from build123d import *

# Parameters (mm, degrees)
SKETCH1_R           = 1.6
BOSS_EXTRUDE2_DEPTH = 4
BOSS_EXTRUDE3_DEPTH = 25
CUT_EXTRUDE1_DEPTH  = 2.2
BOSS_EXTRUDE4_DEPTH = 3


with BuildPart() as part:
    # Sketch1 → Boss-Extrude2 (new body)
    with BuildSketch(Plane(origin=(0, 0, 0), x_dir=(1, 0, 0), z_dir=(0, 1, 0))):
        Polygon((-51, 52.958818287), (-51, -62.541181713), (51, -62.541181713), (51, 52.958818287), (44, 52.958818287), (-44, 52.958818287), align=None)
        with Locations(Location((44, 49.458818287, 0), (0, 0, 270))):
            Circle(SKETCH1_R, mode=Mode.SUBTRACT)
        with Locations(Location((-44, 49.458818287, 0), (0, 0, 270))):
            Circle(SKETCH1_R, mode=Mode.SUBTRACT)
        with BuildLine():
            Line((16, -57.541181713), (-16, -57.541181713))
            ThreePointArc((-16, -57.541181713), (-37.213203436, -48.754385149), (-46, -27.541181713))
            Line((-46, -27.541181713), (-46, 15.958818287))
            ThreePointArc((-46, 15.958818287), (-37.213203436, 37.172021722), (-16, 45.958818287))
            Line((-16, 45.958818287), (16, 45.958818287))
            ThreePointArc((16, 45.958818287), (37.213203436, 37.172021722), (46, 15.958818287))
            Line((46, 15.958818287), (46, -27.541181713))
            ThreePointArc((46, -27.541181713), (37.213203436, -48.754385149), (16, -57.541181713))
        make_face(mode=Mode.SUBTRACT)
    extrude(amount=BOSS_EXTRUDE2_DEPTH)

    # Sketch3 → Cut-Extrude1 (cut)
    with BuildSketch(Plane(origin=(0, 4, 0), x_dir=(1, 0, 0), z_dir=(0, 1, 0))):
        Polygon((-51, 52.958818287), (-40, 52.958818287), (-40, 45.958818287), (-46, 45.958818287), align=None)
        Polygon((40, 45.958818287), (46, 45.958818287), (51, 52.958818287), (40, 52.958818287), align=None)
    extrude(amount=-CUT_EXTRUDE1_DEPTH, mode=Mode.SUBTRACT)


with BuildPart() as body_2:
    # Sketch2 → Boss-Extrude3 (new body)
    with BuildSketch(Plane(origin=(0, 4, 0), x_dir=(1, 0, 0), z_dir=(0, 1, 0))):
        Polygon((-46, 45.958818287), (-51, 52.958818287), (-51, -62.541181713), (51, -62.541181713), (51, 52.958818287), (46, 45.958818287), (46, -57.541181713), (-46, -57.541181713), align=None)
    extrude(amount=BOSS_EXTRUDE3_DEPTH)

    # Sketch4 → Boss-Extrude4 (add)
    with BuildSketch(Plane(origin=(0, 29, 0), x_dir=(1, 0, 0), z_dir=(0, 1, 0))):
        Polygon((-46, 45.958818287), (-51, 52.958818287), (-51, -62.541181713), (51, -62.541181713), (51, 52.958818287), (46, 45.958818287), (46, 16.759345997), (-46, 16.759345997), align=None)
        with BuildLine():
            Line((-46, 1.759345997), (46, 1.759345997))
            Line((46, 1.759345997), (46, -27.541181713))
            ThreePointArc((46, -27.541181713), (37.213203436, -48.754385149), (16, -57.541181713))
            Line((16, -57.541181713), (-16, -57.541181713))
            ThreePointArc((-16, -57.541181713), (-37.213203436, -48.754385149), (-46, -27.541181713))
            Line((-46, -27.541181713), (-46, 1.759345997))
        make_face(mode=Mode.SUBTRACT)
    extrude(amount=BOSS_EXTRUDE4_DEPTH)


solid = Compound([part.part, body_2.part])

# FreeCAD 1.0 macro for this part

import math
import FreeCAD as App
import Part
import Sketcher
from FreeCAD import Vector

doc = App.newDocument("Part")
body = doc.addObject("PartDesign::Body", "Body")

sketch1 = body.newObject("Sketcher::SketchObject", "Sketch")
sketch1.AttachmentSupport = (doc.getObject("XZ_Plane"), [""])
sketch1.MapMode = "FlatFace"
sketch1.addGeometry([
    Part.LineSegment(Vector(-51, -53, 0), Vector(-51, 62.5, 0)),
    Part.LineSegment(Vector(-51, 62.5, 0), Vector(51, 62.5, 0)),
    Part.LineSegment(Vector(51, 62.5, 0), Vector(51, -53, 0)),
    Part.LineSegment(Vector(51, -53, 0), Vector(-51, -53, 0)),
    Part.ArcOfCircle(Part.Circle(Vector(16, 27.5, 0), Vector(0, 0, 1), 30), math.radians(0), math.radians(90)),
    Part.LineSegment(Vector(16, 57.5, 0), Vector(-16, 57.5, 0)),
    Part.ArcOfCircle(Part.Circle(Vector(-16, 27.5, 0), Vector(0, 0, 1), 30), math.radians(90), math.radians(180)),
    Part.LineSegment(Vector(-46, 27.5, 0), Vector(-46, -16, 0)),
    Part.ArcOfCircle(Part.Circle(Vector(-16, -16, 0), Vector(0, 0, 1), 30), math.radians(180), math.radians(270)),
    Part.LineSegment(Vector(-16, -46, 0), Vector(16, -46, 0)),
    Part.ArcOfCircle(Part.Circle(Vector(16, -16, 0), Vector(0, 0, 1), 30), math.radians(-90), math.radians(0)),
    Part.LineSegment(Vector(46, -16, 0), Vector(46, 27.5, 0)),
    Part.Circle(Vector(-44, -49.5, 0), Vector(0, 0, 1), 1.6),
    Part.Circle(Vector(44, -49.5, 0), Vector(0, 0, 1), 1.6),
], False)
sketch1.addConstraint([
    Sketcher.Constraint("Coincident", 0, 2, 1, 1),
    Sketcher.Constraint("Coincident", 1, 2, 2, 1),
    Sketcher.Constraint("Coincident", 2, 2, 3, 1),
    Sketcher.Constraint("Coincident", 3, 2, 0, 1),
    Sketcher.Constraint("Tangent", 4, 2, 5, 1),
    Sketcher.Constraint("Tangent", 5, 2, 6, 1),
    Sketcher.Constraint("Tangent", 6, 2, 7, 1),
    Sketcher.Constraint("Tangent", 7, 2, 8, 1),
    Sketcher.Constraint("Tangent", 8, 2, 9, 1),
    Sketcher.Constraint("Tangent", 9, 2, 10, 1),
    Sketcher.Constraint("Tangent", 10, 2, 11, 1),
    Sketcher.Constraint("Tangent", 11, 2, 4, 1),
    Sketcher.Constraint("Vertical", 0),
    Sketcher.Constraint("Horizontal", 1),
    Sketcher.Constraint("Vertical", 2),
    Sketcher.Constraint("Horizontal", 3),
    Sketcher.Constraint("Horizontal", 5),
    Sketcher.Constraint("Vertical", 7),
    Sketcher.Constraint("Horizontal", 9),
    Sketcher.Constraint("Vertical", 11),
    Sketcher.Constraint("Equal", 4, 6),
    Sketcher.Constraint("Equal", 6, 8),
    Sketcher.Constraint("Equal", 8, 10),
    Sketcher.Constraint("Equal", 12, 13),
    Sketcher.Constraint("Symmetric", 12, 3, 13, 3, -2),
    Sketcher.Constraint("Radius", 4, 30.0),
    Sketcher.Constraint("Diameter", 12, 3.2),
    Sketcher.Constraint("DistanceX", 1, 1, 1, 2, 102.0),
    Sketcher.Constraint("DistanceX", 5, 2, 5, 1, 32.0),
    Sketcher.Constraint("DistanceY", 0, 1, 0, 2, 115.5),
    Sketcher.Constraint("DistanceY", 7, 2, 7, 1, 43.5),
    Sketcher.Constraint("DistanceX", -1, 1, 4, 3, 16.0),
    Sketcher.Constraint("DistanceX", 12, 3, -1, 1, 44.0),
    Sketcher.Constraint("DistanceX", 0, 2, -1, 1, 51.0),
    Sketcher.Constraint("DistanceY", 12, 3, 6, 3, 77.0),
    Sketcher.Constraint("DistanceY", 6, 3, 0, 2, 35.0),
    Sketcher.Constraint("DistanceY", -1, 1, 4, 3, 27.541182),
])
pad1 = body.newObject("PartDesign::Pad", "Pad")
pad1.Profile = sketch1
pad1.Length = 4
pad1.Reversed = True

sketch2 = body.newObject("Sketcher::SketchObject", "Sketch001")
sketch2.AttachmentSupport = (doc.getObject("XZ_Plane"), [""])
sketch2.MapMode = "FlatFace"
sketch2.AttachmentOffset = App.Placement(Vector(0, 0, -4), App.Rotation())
sketch2.addGeometry([
    Part.LineSegment(Vector(-40, -53, 0), Vector(-51, -53, 0)),
    Part.LineSegment(Vector(-51, -53, 0), Vector(-46, -46, 0)),
    Part.LineSegment(Vector(-46, -46, 0), Vector(-40, -46, 0)),
    Part.LineSegment(Vector(-40, -46, 0), Vector(-40, -53, 0)),
    Part.LineSegment(Vector(40, -46, 0), Vector(46, -46, 0)),
    Part.LineSegment(Vector(46, -46, 0), Vector(51, -53, 0)),
    Part.LineSegment(Vector(51, -53, 0), Vector(40, -53, 0)),
    Part.LineSegment(Vector(40, -53, 0), Vector(40, -46, 0)),
], False)
sketch2.addConstraint([
    Sketcher.Constraint("Coincident", 0, 2, 1, 1),
    Sketcher.Constraint("Coincident", 1, 2, 2, 1),
    Sketcher.Constraint("Coincident", 2, 2, 3, 1),
    Sketcher.Constraint("Coincident", 3, 2, 0, 1),
    Sketcher.Constraint("Coincident", 4, 2, 5, 1),
    Sketcher.Constraint("Coincident", 5, 2, 6, 1),
    Sketcher.Constraint("Coincident", 6, 2, 7, 1),
    Sketcher.Constraint("Coincident", 7, 2, 4, 1),
    Sketcher.Constraint("Horizontal", 0),
    Sketcher.Constraint("Horizontal", 2),
    Sketcher.Constraint("Vertical", 3),
    Sketcher.Constraint("Horizontal", 4),
    Sketcher.Constraint("Horizontal", 6),
    Sketcher.Constraint("Vertical", 7),
    Sketcher.Constraint("Symmetric", 1, 2, 4, 2, -2),
    Sketcher.Constraint("Symmetric", 0, 2, 5, 2, -2),
    Sketcher.Constraint("Equal", 2, 4),
    Sketcher.Constraint("DistanceX", 0, 2, 0, 1, 11.0),
    Sketcher.Constraint("DistanceX", 2, 1, 2, 2, 6.0),
    Sketcher.Constraint("DistanceY", 3, 2, 3, 1, 7.0),
    Sketcher.Constraint("DistanceX", 0, 2, -1, 1, 51.0),
    Sketcher.Constraint("DistanceY", 0, 2, -1, 1, 52.958818),
])
pocket1 = body.newObject("PartDesign::Pocket", "Pocket")
pocket1.Profile = sketch2
pocket1.Length = 2.2
pocket1.Reversed = True
body2 = doc.addObject("PartDesign::Body", "Body001")

sketch3 = body2.newObject("Sketcher::SketchObject", "Sketch002")
sketch3.AttachmentSupport = (doc.getObject("XZ_Plane001"), [""])
sketch3.MapMode = "FlatFace"
sketch3.AttachmentOffset = App.Placement(Vector(0, 0, -4), App.Rotation())
sketch3.addGeometry([
    Part.LineSegment(Vector(-46, -46, 0), Vector(-51, -53, 0)),
    Part.LineSegment(Vector(-51, -53, 0), Vector(-51, 63, 0)),
    Part.LineSegment(Vector(-51, 63, 0), Vector(51, 63, 0)),
    Part.LineSegment(Vector(51, 63, 0), Vector(51, -53, 0)),
    Part.LineSegment(Vector(51, -53, 0), Vector(46, -46, 0)),
    Part.LineSegment(Vector(46, -46, 0), Vector(46, 58, 0)),
    Part.LineSegment(Vector(46, 58, 0), Vector(-46, 58, 0)),
    Part.LineSegment(Vector(-46, 58, 0), Vector(-46, -46, 0)),
], False)
sketch3.addConstraint([
    Sketcher.Constraint("Coincident", 0, 2, 1, 1),
    Sketcher.Constraint("Coincident", 1, 2, 2, 1),
    Sketcher.Constraint("Coincident", 2, 2, 3, 1),
    Sketcher.Constraint("Coincident", 3, 2, 4, 1),
    Sketcher.Constraint("Coincident", 4, 2, 5, 1),
    Sketcher.Constraint("Coincident", 5, 2, 6, 1),
    Sketcher.Constraint("Coincident", 6, 2, 7, 1),
    Sketcher.Constraint("Coincident", 7, 2, 0, 1),
    Sketcher.Constraint("Vertical", 1),
    Sketcher.Constraint("Horizontal", 2),
    Sketcher.Constraint("Vertical", 3),
    Sketcher.Constraint("Vertical", 5),
    Sketcher.Constraint("Horizontal", 6),
    Sketcher.Constraint("Vertical", 7),
    Sketcher.Constraint("Symmetric", 0, 2, 3, 2, -2),
    Sketcher.Constraint("Symmetric", 4, 2, 7, 2, -2),
    Sketcher.Constraint("DistanceX", 2, 1, 2, 2, 102.0),
    Sketcher.Constraint("DistanceX", 6, 2, 6, 1, 92.0),
    Sketcher.Constraint("DistanceY", 1, 1, 1, 2, 115.5),
    Sketcher.Constraint("DistanceY", 5, 1, 5, 2, 103.5),
    Sketcher.Constraint("DistanceY", 3, 2, 4, 2, 7.0),
    Sketcher.Constraint("DistanceY", 0, 2, -1, 1, 52.958818),
])
pad2 = body2.newObject("PartDesign::Pad", "Pad001")
pad2.Profile = sketch3
pad2.Length = 25
pad2.Reversed = True

sketch4 = body2.newObject("Sketcher::SketchObject", "Sketch003")
sketch4.AttachmentSupport = (doc.getObject("XZ_Plane001"), [""])
sketch4.MapMode = "FlatFace"
sketch4.AttachmentOffset = App.Placement(Vector(0, 0, -29), App.Rotation())
sketch4.addGeometry([
    Part.LineSegment(Vector(-46, -46, 0), Vector(-51, -53, 0)),
    Part.LineSegment(Vector(-51, -53, 0), Vector(-51, 63, 0)),
    Part.LineSegment(Vector(-51, 63, 0), Vector(51, 63, 0)),
    Part.LineSegment(Vector(51, 63, 0), Vector(51, -53, 0)),
    Part.LineSegment(Vector(51, -53, 0), Vector(46, -46, 0)),
    Part.LineSegment(Vector(46, -46, 0), Vector(46, -17, 0)),
    Part.LineSegment(Vector(46, -17, 0), Vector(-46, -17, 0)),
    Part.LineSegment(Vector(-46, -17, 0), Vector(-46, -46, 0)),
    Part.LineSegment(Vector(-46, 28, 0), Vector(-46, -2, 0)),
    Part.LineSegment(Vector(-46, -2, 0), Vector(46, -2, 0)),
    Part.LineSegment(Vector(46, -2, 0), Vector(46, 28, 0)),
    Part.ArcOfCircle(Part.Circle(Vector(16, 28, 0), Vector(0, 0, 1), 30), math.radians(0), math.radians(90)),
    Part.LineSegment(Vector(16, 58, 0), Vector(-16, 58, 0)),
    Part.ArcOfCircle(Part.Circle(Vector(-16, 28, 0), Vector(0, 0, 1), 30), math.radians(90), math.radians(180)),
], False)
sketch4.addConstraint([
    Sketcher.Constraint("Coincident", 0, 2, 1, 1),
    Sketcher.Constraint("Coincident", 1, 2, 2, 1),
    Sketcher.Constraint("Coincident", 2, 2, 3, 1),
    Sketcher.Constraint("Coincident", 3, 2, 4, 1),
    Sketcher.Constraint("Coincident", 4, 2, 5, 1),
    Sketcher.Constraint("Coincident", 5, 2, 6, 1),
    Sketcher.Constraint("Coincident", 6, 2, 7, 1),
    Sketcher.Constraint("Coincident", 7, 2, 0, 1),
    Sketcher.Constraint("Coincident", 8, 2, 9, 1),
    Sketcher.Constraint("Coincident", 9, 2, 10, 1),
    Sketcher.Constraint("Tangent", 10, 2, 11, 1),
    Sketcher.Constraint("Tangent", 11, 2, 12, 1),
    Sketcher.Constraint("Tangent", 12, 2, 13, 1),
    Sketcher.Constraint("Tangent", 13, 2, 8, 1),
    Sketcher.Constraint("Vertical", 1),
    Sketcher.Constraint("Horizontal", 2),
    Sketcher.Constraint("Vertical", 3),
    Sketcher.Constraint("Vertical", 5),
    Sketcher.Constraint("Horizontal", 6),
    Sketcher.Constraint("Vertical", 7),
    Sketcher.Constraint("Vertical", 8),
    Sketcher.Constraint("Horizontal", 9),
    Sketcher.Constraint("Vertical", 10),
    Sketcher.Constraint("Horizontal", 12),
    Sketcher.Constraint("Equal", 11, 13),
    Sketcher.Constraint("Symmetric", 0, 2, 3, 2, -2),
    Sketcher.Constraint("Symmetric", 4, 2, 7, 2, -2),
    Sketcher.Constraint("Vertical", 7, 2, 8, 2),
    Sketcher.Constraint("Vertical", 5, 2, 9, 2),
    Sketcher.Constraint("Radius", 11, 30.0),
    Sketcher.Constraint("DistanceX", 2, 1, 2, 2, 102.0),
    Sketcher.Constraint("DistanceX", 6, 2, 6, 1, 92.0),
    Sketcher.Constraint("DistanceY", 1, 1, 1, 2, 115.5),
    Sketcher.Constraint("DistanceY", 13, 3, 1, 2, 35.0),
    Sketcher.Constraint("DistanceY", 3, 2, 4, 2, 7.0),
    Sketcher.Constraint("DistanceY", 6, 2, 8, 2, 15.0),
    Sketcher.Constraint("DistanceY", 5, 1, 5, 2, 29.199472),
    Sketcher.Constraint("DistanceY", -1, 1, 11, 3, 27.541182),
])
pad3 = body2.newObject("PartDesign::Pad", "Pad002")
pad3.Profile = sketch4
pad3.Length = 3
pad3.Reversed = True

doc.recompute()
